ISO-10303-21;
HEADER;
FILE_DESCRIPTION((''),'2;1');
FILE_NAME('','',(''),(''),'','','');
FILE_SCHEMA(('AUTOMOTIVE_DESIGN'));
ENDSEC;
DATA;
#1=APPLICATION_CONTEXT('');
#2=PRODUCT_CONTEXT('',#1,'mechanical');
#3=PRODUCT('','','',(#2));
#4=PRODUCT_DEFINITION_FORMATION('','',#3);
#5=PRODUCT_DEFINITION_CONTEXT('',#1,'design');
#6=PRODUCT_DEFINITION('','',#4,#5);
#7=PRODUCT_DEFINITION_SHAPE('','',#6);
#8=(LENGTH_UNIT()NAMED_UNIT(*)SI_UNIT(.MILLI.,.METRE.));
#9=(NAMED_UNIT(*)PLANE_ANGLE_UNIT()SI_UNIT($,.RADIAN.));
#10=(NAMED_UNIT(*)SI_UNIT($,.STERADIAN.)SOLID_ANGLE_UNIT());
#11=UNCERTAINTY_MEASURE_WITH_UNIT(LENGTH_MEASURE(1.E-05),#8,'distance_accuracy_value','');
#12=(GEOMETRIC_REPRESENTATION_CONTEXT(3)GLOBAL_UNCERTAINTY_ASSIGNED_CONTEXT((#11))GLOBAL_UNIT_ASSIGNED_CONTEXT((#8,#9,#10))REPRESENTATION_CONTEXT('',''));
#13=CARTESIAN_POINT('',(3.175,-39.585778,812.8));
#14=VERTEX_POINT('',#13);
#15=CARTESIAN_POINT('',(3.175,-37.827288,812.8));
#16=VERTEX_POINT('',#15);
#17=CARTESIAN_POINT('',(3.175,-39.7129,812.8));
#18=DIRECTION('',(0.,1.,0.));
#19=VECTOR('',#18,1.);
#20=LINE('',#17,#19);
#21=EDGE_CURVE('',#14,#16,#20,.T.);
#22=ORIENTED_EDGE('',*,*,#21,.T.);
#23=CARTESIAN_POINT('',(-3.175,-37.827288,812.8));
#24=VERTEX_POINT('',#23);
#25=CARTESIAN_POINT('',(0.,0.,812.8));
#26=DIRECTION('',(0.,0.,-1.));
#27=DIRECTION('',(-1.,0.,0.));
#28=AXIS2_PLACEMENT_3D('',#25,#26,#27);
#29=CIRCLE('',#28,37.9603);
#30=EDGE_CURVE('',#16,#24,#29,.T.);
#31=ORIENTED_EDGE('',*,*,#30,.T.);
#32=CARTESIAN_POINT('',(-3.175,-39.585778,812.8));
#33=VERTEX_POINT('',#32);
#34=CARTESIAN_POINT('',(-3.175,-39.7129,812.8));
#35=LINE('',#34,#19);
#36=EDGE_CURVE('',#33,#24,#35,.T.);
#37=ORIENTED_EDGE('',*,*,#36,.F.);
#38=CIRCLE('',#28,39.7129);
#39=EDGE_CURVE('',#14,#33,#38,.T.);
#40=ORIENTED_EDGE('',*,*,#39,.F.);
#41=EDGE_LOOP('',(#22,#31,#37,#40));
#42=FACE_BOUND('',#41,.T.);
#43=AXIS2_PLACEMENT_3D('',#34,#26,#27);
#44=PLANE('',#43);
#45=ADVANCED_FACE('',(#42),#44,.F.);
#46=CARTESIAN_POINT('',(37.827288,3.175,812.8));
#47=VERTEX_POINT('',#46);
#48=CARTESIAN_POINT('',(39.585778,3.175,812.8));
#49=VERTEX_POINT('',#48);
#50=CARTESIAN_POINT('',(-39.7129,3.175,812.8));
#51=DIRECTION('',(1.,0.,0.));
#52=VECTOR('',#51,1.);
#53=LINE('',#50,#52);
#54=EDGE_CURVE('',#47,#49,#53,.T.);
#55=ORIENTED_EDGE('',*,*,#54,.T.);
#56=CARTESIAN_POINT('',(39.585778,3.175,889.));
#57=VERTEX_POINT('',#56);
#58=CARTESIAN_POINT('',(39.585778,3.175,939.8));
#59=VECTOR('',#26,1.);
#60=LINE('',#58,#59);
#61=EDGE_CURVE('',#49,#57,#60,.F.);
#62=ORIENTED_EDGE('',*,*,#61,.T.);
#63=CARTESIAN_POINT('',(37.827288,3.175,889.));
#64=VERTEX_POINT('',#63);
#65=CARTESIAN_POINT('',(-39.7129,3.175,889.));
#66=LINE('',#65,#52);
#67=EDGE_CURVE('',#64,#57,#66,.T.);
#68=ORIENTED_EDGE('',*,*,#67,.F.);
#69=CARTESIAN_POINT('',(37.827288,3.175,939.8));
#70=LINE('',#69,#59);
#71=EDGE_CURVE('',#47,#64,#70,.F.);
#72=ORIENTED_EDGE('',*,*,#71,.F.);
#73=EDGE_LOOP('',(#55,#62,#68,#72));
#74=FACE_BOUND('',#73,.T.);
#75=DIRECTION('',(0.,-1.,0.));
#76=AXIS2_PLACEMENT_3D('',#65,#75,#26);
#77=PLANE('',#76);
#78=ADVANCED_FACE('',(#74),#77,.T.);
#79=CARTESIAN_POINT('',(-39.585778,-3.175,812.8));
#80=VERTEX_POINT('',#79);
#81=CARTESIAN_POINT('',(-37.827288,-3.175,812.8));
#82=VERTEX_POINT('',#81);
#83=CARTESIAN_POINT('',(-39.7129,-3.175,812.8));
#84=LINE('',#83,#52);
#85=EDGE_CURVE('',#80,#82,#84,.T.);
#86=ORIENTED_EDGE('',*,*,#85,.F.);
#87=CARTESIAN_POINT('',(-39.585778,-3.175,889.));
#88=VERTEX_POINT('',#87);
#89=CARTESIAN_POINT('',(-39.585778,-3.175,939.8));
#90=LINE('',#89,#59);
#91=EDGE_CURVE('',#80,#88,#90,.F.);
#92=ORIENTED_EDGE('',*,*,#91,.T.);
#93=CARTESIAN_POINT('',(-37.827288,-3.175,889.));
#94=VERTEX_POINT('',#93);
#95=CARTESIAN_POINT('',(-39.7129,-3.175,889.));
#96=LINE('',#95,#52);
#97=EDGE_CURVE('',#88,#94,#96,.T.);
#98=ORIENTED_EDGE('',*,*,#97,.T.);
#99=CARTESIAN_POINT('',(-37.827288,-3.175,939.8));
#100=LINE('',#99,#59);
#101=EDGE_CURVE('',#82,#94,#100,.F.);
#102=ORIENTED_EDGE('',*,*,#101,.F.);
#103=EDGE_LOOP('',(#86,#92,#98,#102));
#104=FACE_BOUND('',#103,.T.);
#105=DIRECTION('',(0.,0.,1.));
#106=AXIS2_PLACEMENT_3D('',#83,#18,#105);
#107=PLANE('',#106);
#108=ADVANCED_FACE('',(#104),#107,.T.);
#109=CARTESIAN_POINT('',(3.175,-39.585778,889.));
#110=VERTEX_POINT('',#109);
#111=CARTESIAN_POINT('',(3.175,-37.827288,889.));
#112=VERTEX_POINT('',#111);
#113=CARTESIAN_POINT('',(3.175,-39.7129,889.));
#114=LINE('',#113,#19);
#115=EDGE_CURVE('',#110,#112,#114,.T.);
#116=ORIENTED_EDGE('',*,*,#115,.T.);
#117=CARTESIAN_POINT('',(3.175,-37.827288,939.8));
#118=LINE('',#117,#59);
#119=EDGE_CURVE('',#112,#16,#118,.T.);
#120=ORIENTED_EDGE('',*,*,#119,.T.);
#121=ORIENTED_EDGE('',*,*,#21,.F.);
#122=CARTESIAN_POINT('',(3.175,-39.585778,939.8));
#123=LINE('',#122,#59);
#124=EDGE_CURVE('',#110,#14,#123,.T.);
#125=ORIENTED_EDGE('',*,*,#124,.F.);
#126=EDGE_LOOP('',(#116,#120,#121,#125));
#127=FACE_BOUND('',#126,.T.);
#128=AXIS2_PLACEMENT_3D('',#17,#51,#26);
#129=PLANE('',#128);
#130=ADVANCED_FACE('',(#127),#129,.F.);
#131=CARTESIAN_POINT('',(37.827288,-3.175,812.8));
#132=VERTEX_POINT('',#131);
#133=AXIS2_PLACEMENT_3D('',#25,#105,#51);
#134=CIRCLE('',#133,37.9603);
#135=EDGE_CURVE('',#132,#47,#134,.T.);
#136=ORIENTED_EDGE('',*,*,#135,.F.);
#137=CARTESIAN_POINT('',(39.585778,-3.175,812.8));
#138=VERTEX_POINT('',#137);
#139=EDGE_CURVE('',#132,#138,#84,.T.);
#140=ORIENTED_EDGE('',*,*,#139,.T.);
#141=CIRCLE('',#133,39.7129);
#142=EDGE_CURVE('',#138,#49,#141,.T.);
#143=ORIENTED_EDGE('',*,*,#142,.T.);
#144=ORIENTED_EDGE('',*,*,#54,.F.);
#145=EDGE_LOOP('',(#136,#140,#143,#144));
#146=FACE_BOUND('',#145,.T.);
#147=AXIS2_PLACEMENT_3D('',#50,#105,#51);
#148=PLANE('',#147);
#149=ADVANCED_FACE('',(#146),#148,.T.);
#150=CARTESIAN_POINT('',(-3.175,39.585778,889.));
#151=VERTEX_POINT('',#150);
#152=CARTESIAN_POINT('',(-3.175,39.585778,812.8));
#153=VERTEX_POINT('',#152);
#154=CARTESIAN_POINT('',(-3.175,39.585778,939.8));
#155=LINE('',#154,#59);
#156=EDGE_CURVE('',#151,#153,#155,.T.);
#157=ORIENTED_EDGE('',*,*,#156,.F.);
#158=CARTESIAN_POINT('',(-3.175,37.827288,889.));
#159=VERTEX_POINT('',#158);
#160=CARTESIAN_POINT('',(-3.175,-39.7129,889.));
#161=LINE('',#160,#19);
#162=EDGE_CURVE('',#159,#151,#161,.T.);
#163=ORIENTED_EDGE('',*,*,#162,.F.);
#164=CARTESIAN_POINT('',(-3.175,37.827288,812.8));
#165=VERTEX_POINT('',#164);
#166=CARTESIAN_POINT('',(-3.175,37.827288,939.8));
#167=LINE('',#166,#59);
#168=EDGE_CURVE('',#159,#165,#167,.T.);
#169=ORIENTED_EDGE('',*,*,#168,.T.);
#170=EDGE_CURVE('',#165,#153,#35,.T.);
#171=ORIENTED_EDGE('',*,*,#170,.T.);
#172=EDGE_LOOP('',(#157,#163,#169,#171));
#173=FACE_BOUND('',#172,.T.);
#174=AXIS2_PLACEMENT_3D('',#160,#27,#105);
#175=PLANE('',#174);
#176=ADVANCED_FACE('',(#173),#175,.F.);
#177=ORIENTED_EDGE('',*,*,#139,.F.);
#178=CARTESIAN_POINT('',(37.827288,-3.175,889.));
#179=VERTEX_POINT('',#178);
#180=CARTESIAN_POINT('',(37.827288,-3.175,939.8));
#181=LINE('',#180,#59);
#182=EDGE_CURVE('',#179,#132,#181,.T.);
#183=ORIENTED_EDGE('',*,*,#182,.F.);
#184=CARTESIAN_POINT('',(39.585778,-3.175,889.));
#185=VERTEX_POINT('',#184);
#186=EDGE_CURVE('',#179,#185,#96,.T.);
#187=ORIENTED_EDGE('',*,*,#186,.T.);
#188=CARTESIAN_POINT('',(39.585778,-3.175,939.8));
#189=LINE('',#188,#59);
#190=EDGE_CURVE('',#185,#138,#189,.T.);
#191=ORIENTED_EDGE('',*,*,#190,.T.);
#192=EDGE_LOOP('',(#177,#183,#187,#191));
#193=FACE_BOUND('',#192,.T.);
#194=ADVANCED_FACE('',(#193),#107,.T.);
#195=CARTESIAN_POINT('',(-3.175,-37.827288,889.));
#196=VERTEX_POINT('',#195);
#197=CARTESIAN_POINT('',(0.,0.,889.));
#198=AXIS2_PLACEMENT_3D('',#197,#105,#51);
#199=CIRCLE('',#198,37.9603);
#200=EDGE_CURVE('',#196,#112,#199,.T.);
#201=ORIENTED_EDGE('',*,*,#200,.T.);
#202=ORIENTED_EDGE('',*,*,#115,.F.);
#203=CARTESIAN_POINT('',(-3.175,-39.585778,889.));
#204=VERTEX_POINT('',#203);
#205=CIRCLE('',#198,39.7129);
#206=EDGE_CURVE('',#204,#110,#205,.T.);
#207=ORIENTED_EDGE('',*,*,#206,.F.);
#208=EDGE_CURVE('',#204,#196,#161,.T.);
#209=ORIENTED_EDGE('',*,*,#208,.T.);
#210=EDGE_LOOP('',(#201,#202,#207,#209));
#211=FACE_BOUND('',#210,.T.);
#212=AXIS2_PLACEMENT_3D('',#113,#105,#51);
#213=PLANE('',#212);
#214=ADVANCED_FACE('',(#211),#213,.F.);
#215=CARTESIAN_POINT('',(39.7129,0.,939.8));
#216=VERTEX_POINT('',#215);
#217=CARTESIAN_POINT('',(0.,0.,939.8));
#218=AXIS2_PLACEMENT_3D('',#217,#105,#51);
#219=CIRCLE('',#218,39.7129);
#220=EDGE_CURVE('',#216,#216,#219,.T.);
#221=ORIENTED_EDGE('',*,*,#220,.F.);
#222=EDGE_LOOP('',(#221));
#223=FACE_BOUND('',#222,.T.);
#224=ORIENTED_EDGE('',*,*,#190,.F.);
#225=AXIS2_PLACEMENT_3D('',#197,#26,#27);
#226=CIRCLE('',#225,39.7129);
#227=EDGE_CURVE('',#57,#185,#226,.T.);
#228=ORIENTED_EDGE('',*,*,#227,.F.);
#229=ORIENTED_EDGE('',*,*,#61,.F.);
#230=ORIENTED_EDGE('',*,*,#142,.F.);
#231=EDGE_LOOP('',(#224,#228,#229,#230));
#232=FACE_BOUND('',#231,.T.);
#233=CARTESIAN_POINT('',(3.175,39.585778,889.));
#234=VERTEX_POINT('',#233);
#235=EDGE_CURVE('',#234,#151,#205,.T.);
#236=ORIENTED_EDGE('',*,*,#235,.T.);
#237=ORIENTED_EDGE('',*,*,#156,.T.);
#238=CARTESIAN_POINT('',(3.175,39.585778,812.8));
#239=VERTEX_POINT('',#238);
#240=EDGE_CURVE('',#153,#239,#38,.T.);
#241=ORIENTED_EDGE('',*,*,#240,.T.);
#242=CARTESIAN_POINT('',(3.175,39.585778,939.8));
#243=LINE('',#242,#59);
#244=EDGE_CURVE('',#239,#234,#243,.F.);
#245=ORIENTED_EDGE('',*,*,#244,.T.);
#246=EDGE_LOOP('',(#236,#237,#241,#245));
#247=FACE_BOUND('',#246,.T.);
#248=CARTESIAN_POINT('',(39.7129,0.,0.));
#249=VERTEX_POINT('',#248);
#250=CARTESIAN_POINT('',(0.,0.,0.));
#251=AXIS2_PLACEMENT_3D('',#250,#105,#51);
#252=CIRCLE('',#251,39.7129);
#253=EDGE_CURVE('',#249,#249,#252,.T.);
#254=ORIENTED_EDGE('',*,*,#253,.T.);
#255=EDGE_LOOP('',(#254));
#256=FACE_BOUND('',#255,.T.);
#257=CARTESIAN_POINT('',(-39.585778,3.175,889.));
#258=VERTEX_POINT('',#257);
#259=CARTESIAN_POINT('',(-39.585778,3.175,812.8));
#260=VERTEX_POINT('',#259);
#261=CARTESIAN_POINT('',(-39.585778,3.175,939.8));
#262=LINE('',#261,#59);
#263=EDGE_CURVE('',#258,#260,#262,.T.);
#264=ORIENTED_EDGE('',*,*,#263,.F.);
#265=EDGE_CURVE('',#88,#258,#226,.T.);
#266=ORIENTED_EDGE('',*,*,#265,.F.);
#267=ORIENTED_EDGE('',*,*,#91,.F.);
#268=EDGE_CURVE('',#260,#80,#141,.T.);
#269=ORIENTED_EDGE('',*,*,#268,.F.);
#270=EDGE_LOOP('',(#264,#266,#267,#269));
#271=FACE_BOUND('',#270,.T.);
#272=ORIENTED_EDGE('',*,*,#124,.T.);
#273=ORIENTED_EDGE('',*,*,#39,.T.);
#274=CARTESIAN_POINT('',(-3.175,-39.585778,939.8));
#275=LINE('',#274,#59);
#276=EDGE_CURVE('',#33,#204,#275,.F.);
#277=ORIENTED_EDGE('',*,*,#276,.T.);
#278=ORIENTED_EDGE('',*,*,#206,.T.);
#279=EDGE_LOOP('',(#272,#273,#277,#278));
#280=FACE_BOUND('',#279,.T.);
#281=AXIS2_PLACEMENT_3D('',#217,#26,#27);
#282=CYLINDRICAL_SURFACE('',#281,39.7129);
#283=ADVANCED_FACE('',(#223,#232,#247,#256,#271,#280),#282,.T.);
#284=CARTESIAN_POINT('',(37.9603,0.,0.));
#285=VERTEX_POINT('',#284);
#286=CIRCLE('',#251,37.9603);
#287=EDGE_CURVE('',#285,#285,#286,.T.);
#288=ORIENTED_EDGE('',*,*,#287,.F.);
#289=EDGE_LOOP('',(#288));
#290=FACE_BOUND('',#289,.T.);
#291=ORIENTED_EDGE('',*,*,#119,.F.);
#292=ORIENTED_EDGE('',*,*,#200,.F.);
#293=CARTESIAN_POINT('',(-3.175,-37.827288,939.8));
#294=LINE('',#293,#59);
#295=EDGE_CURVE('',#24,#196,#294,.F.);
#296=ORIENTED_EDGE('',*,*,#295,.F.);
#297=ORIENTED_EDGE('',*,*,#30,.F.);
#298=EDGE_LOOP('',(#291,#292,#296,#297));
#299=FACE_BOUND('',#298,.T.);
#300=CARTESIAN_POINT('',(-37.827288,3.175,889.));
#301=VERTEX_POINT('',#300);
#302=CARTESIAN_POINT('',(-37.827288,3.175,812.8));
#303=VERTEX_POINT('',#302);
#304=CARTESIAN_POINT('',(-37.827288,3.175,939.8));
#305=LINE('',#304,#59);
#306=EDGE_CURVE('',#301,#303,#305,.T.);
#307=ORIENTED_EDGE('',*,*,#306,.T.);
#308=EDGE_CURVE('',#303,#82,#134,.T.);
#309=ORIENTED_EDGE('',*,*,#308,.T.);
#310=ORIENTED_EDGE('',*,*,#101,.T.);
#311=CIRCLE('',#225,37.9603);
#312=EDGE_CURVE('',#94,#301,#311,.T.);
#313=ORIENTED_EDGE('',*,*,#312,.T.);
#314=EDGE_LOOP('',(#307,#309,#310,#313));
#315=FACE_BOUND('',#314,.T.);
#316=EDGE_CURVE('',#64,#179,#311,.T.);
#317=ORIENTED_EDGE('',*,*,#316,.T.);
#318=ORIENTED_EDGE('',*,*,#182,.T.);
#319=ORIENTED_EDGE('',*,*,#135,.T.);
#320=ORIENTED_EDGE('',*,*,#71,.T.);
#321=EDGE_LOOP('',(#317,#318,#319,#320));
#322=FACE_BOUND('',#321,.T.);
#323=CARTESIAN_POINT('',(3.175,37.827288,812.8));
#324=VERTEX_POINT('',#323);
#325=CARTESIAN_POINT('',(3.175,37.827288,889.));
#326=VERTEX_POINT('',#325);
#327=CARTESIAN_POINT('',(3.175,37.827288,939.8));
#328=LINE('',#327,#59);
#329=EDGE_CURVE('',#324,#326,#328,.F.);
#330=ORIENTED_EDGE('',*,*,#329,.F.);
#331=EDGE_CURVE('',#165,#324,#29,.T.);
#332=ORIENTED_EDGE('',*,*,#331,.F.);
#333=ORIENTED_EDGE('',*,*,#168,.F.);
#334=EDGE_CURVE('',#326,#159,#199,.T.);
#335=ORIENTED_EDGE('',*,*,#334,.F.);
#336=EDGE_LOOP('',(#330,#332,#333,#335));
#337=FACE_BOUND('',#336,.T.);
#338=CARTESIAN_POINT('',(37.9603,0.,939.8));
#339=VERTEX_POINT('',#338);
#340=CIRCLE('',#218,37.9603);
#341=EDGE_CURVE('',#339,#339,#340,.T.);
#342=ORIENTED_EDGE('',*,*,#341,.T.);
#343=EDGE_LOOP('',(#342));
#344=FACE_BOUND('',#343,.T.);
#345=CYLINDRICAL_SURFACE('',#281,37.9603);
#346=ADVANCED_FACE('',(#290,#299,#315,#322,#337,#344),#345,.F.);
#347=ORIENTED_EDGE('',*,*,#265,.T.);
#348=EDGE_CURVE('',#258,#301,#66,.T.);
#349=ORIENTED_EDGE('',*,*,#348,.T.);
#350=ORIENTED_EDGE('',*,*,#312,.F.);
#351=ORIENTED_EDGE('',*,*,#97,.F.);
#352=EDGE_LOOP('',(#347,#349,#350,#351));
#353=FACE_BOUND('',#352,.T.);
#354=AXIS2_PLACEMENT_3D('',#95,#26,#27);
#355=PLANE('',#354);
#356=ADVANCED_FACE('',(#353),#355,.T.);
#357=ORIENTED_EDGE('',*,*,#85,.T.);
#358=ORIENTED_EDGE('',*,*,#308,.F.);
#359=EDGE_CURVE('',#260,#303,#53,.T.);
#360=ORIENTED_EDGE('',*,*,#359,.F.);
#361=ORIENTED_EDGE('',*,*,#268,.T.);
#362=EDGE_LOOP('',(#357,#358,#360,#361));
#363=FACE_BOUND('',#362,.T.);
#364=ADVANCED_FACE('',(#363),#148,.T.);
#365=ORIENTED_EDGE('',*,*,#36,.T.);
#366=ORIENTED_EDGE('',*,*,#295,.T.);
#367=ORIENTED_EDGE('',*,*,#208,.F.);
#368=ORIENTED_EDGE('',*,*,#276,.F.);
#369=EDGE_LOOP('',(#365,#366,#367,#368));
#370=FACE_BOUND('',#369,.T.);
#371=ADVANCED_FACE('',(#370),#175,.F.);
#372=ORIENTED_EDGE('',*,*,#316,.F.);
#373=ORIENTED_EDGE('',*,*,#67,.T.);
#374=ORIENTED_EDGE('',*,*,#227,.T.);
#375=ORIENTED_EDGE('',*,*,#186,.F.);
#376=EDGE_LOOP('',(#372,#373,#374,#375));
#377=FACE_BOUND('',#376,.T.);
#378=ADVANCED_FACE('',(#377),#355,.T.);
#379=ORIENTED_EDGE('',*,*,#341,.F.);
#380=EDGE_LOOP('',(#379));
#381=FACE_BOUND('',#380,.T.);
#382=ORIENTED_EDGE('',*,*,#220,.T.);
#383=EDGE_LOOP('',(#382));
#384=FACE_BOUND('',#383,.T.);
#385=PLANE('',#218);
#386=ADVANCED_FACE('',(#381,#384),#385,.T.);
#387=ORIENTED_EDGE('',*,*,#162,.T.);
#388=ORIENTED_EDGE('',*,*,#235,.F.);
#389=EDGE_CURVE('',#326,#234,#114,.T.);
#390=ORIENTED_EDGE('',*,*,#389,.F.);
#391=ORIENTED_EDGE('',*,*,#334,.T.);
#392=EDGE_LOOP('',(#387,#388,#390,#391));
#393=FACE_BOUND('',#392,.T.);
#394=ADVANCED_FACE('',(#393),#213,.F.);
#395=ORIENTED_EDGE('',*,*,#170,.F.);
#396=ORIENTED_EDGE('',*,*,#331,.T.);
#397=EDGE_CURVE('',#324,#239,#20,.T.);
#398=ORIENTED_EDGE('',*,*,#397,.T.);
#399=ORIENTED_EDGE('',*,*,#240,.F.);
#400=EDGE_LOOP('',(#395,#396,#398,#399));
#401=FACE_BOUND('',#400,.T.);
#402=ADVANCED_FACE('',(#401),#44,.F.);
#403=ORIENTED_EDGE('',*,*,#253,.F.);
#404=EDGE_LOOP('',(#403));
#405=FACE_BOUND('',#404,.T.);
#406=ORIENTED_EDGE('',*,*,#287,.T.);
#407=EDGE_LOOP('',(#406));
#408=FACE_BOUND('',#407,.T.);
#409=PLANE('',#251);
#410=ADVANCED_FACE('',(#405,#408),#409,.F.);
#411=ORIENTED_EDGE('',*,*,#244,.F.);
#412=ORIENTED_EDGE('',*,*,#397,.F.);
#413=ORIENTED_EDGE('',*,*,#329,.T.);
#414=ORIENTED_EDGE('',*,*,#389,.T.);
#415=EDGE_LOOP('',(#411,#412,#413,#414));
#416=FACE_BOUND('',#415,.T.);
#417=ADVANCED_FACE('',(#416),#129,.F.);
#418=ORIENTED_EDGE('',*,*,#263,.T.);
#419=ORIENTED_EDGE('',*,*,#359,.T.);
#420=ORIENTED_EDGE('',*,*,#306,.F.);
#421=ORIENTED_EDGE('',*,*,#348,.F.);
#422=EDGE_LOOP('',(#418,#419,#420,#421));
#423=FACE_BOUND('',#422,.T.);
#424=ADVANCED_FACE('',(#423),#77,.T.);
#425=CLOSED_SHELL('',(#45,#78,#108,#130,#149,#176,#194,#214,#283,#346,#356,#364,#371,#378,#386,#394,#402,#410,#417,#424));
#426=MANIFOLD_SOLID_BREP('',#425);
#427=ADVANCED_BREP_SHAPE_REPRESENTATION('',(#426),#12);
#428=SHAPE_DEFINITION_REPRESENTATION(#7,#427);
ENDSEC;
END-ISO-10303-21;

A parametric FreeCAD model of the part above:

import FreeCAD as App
import Part
import Sketcher
from FreeCAD import Vector
Q = App.Units.Quantity

doc = App.newDocument("Part")
params = doc.addObject("Spreadsheet::Sheet", "Params")
for row, (alias, value) in enumerate([
    ("sketch1_diameter", "3.127 in"),
    ("sketch1_diameter2", "2.989 in"),
    ("pad1_length", "37 in"),
    ("sketch2_height", "3 in"),
    ("sketch2_width", "0.25 in"),
    ("sketch3_height", "3 in"),
    ("sketch3_width", "0.25 in"),
], start=1):
    params.set(f"A{row}", alias)
    params.set(f"B{row}", "=" + value)
    params.setAlias(f"B{row}", alias)

body = doc.addObject("PartDesign::Body", "Body")

# Sketch on XY plane
sketch1 = doc.addObject("Sketcher::SketchObject", "Sketch")
body.addObject(sketch1)
sketch1.AttachmentSupport = (doc.XY_Plane, [""])
sketch1.MapMode = "FlatFace"
sketch1.addGeometry(Part.Circle(Vector(0, 0, 0), Vector(0, 0, 1), 40), False)
sketch1.addGeometry(Part.Circle(Vector(0, 0, 0), Vector(0, 0, 1), 38), False)
sketch1.addConstraint(Sketcher.Constraint("Coincident", 0, 3, -1, 1))
sketch1.addConstraint(Sketcher.Constraint("Coincident", 1, 3, -1, 1))
sketch1.addConstraint(Sketcher.Constraint("Diameter", 0, Q("3.127 in")))
sketch1.addConstraint(Sketcher.Constraint("Diameter", 1, Q("2.989 in")))
sketch1.setExpression("Constraints[2]", "Params.sketch1_diameter")
sketch1.setExpression("Constraints[3]", "Params.sketch1_diameter2")
pad1 = doc.addObject("PartDesign::Pad", "Pad")
body.addObject(pad1)
pad1.Profile = sketch1
pad1.setExpression("Length", "Params.pad1_length")

# Sketch on XZ plane
sketch2 = doc.addObject("Sketcher::SketchObject", "Sketch001")
body.addObject(sketch2)
sketch2.AttachmentSupport = (doc.XZ_Plane, [""])
sketch2.MapMode = "FlatFace"
sketch2.addGeometry(Part.LineSegment(Vector(-3, 813, 0), Vector(-3, 889, 0)), False)
sketch2.addGeometry(Part.LineSegment(Vector(-3, 889, 0), Vector(3, 889, 0)), False)
sketch2.addGeometry(Part.LineSegment(Vector(3, 889, 0), Vector(3, 813, 0)), False)
sketch2.addGeometry(Part.LineSegment(Vector(3, 813, 0), Vector(-3, 813, 0)), False)
sketch2.addConstraint(Sketcher.Constraint("Coincident", 0, 2, 1, 1))
sketch2.addConstraint(Sketcher.Constraint("Coincident", 1, 2, 2, 1))
sketch2.addConstraint(Sketcher.Constraint("Coincident", 2, 2, 3, 1))
sketch2.addConstraint(Sketcher.Constraint("Coincident", 3, 2, 0, 1))
sketch2.addConstraint(Sketcher.Constraint("Vertical", 0))
sketch2.addConstraint(Sketcher.Constraint("Horizontal", 1))
sketch2.addConstraint(Sketcher.Constraint("Vertical", 2))
sketch2.addConstraint(Sketcher.Constraint("Horizontal", 3))
sketch2.addConstraint(Sketcher.Constraint("DistanceY", 0, 1, 0, 2, Q("3 in")))
sketch2.addConstraint(Sketcher.Constraint("DistanceY", -1, 1, 0, 2, Q("35 in")))
sketch2.addConstraint(Sketcher.Constraint("DistanceX", 1, 1, 1, 2, Q("0.25 in")))
sketch2.addConstraint(Sketcher.Constraint("DistanceX", 0, 2, -1, 1, Q("0.125 in")))
sketch2.setExpression("Constraints[8]", "Params.sketch2_height")
sketch2.setExpression("Constraints[10]", "Params.sketch2_width")
pocket1 = doc.addObject("PartDesign::Pocket", "Pocket")
body.addObject(pocket1)
pocket1.Profile = sketch2
pocket1.Type = "ThroughAll"
pocket1.Midplane = True

# Sketch on YZ plane
sketch3 = doc.addObject("Sketcher::SketchObject", "Sketch002")
body.addObject(sketch3)
sketch3.AttachmentSupport = (doc.YZ_Plane, [""])
sketch3.MapMode = "FlatFace"
sketch3.addGeometry(Part.LineSegment(Vector(3, 889, 0), Vector(-3, 889, 0)), False)
sketch3.addGeometry(Part.LineSegment(Vector(-3, 889, 0), Vector(-3, 813, 0)), False)
sketch3.addGeometry(Part.LineSegment(Vector(-3, 813, 0), Vector(3, 813, 0)), False)
sketch3.addGeometry(Part.LineSegment(Vector(3, 813, 0), Vector(3, 889, 0)), False)
sketch3.addConstraint(Sketcher.Constraint("Coincident", 0, 2, 1, 1))
sketch3.addConstraint(Sketcher.Constraint("Coincident", 1, 2, 2, 1))
sketch3.addConstraint(Sketcher.Constraint("Coincident", 2, 2, 3, 1))
sketch3.addConstraint(Sketcher.Constraint("Coincident", 3, 2, 0, 1))
sketch3.addConstraint(Sketcher.Constraint("Horizontal", 0))
sketch3.addConstraint(Sketcher.Constraint("Vertical", 1))
sketch3.addConstraint(Sketcher.Constraint("Horizontal", 2))
sketch3.addConstraint(Sketcher.Constraint("Vertical", 3))
sketch3.addConstraint(Sketcher.Constraint("DistanceY", 1, 2, 1, 1, Q("3 in")))
sketch3.addConstraint(Sketcher.Constraint("DistanceY", -1, 1, 0, 2, Q("35 in")))
sketch3.addConstraint(Sketcher.Constraint("DistanceX", 0, 2, 0, 1, Q("0.25 in")))
sketch3.addConstraint(Sketcher.Constraint("DistanceX", 0, 2, -1, 1, Q("0.125 in")))
sketch3.setExpression("Constraints[8]", "Params.sketch3_height")
sketch3.setExpression("Constraints[10]", "Params.sketch3_width")
pocket2 = doc.addObject("PartDesign::Pocket", "Pocket001")
body.addObject(pocket2)
pocket2.Profile = sketch3
pocket2.Type = "ThroughAll"
pocket2.Midplane = True

doc.recompute()
